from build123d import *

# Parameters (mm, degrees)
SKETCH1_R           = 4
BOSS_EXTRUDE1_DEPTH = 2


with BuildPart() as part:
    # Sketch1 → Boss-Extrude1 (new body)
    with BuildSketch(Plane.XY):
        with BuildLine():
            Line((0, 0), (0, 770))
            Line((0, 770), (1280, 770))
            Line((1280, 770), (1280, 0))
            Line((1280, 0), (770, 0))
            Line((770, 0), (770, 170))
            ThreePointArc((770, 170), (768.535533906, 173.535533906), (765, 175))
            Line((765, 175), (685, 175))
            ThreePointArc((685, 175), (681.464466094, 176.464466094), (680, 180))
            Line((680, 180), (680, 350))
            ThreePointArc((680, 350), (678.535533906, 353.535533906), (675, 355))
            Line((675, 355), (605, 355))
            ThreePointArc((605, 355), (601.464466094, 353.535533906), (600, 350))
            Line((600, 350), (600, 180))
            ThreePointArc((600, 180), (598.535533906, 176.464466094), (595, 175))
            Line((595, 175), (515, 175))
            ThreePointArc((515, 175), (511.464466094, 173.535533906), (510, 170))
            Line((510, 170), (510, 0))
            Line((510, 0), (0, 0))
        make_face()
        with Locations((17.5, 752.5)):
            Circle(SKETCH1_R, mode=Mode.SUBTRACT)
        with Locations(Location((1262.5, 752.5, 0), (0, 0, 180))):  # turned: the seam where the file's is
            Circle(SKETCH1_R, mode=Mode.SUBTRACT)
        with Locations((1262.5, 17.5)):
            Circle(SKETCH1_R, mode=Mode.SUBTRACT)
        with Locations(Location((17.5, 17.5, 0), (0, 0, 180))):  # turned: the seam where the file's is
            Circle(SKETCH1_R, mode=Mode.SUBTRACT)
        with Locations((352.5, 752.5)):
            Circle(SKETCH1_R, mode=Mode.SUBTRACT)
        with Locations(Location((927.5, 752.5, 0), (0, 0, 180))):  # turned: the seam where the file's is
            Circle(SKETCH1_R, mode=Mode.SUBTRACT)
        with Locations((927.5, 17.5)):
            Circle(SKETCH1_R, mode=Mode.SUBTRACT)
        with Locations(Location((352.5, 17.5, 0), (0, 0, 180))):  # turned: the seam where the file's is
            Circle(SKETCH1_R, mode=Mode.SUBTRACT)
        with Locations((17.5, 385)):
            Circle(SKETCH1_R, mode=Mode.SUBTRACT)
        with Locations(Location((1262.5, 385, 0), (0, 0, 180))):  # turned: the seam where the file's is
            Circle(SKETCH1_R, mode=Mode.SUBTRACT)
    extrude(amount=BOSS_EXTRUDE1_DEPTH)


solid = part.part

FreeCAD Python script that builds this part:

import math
import FreeCAD as App
import Part
import Sketcher

V = App.Vector
Q = App.Units.Quantity

doc = App.newDocument("Part")
body = doc.addObject("PartDesign::Body", "Body")

sketch1 = body.newObject("Sketcher::SketchObject", "Sketch")
sketch1.AttachmentSupport = (doc.getObject("XY_Plane"), [""])
sketch1.MapMode = "FlatFace"
sketch1.addGeometry([
    Part.LineSegment(V(0, 770, 0), V(0, 0, 0)),
    Part.LineSegment(V(0, 0, 0), V(510, 0, 0)),
    Part.LineSegment(V(510, 0, 0), V(510, 170, 0)),
    Part.ArcOfCircle(Part.Circle(V(515, 170, 0), V(0, 0, 1), 5), math.radians(90), math.radians(180)),
    Part.LineSegment(V(515, 175, 0), V(595, 175, 0)),
    Part.ArcOfCircle(Part.Circle(V(595, 180, 0), V(0, 0, 1), 5), math.radians(-90), math.radians(0)),
    Part.LineSegment(V(600, 180, 0), V(600, 350, 0)),
    Part.ArcOfCircle(Part.Circle(V(605, 350, 0), V(0, 0, 1), 5), math.radians(90), math.radians(180)),
    Part.LineSegment(V(605, 355, 0), V(675, 355, 0)),
    Part.ArcOfCircle(Part.Circle(V(675, 350, 0), V(0, 0, 1), 5), math.radians(0), math.radians(90)),
    Part.LineSegment(V(680, 350, 0), V(680, 180, 0)),
    Part.ArcOfCircle(Part.Circle(V(685, 180, 0), V(0, 0, 1), 5), math.radians(180), math.radians(270)),
    Part.LineSegment(V(685, 175, 0), V(765, 175, 0)),
    Part.ArcOfCircle(Part.Circle(V(765, 170, 0), V(0, 0, 1), 5), math.radians(0), math.radians(90)),
    Part.LineSegment(V(770, 170, 0), V(770, 0, 0)),
    Part.LineSegment(V(770, 0, 0), V(1280, 0, 0)),
    Part.LineSegment(V(1280, 0, 0), V(1280, 770, 0)),
    Part.LineSegment(V(1280, 770, 0), V(0, 770, 0)),
    Part.Circle(V(1262.5, 17.5, 0), V(0, 0, 1), 4),
    Part.Circle(V(927.5, 17.5, 0), V(0, 0, 1), 4),
    Part.Circle(V(352.5, 17.5, 0), V(0, 0, 1), 4),
    Part.Circle(V(17.5, 17.5, 0), V(0, 0, 1), 4),
    Part.Circle(V(1262.5, 385, 0), V(0, 0, 1), 4),
    Part.Circle(V(1262.5, 752.5, 0), V(0, 0, 1), 4),
    Part.Circle(V(927.5, 752.5, 0), V(0, 0, 1), 4),
    Part.Circle(V(17.5, 385, 0), V(0, 0, 1), 4),
    Part.Circle(V(352.5, 752.5, 0), V(0, 0, 1), 4),
    Part.Circle(V(17.5, 752.5, 0), V(0, 0, 1), 4),
], False)
sketch1.addConstraint([
    Sketcher.Constraint("Coincident", 0, 2, 1, 1),
    Sketcher.Constraint("Coincident", 1, 2, 2, 1),
    Sketcher.Constraint("Tangent", 2, 2, 3, 2),
    Sketcher.Constraint("Tangent", 3, 1, 4, 1),
    Sketcher.Constraint("Tangent", 4, 2, 5, 1),
    Sketcher.Constraint("Tangent", 5, 2, 6, 1),
    Sketcher.Constraint("Tangent", 6, 2, 7, 2),
    Sketcher.Constraint("Tangent", 7, 1, 8, 1),
    Sketcher.Constraint("Tangent", 8, 2, 9, 2),
    Sketcher.Constraint("Tangent", 9, 1, 10, 1),
    Sketcher.Constraint("Tangent", 10, 2, 11, 1),
    Sketcher.Constraint("Tangent", 11, 2, 12, 1),
    Sketcher.Constraint("Tangent", 12, 2, 13, 2),
    Sketcher.Constraint("Tangent", 13, 1, 14, 1),
    Sketcher.Constraint("Coincident", 14, 2, 15, 1),
    Sketcher.Constraint("Coincident", 15, 2, 16, 1),
    Sketcher.Constraint("Coincident", 16, 2, 17, 1),
    Sketcher.Constraint("Coincident", 17, 2, 0, 1),
    Sketcher.Constraint("Vertical", 0),
    Sketcher.Constraint("Horizontal", 1),
    Sketcher.Constraint("Vertical", 2),
    Sketcher.Constraint("Horizontal", 4),
    Sketcher.Constraint("Vertical", 6),
    Sketcher.Constraint("Horizontal", 8),
    Sketcher.Constraint("Vertical", 10),
    Sketcher.Constraint("Horizontal", 12),
    Sketcher.Constraint("Vertical", 14),
    Sketcher.Constraint("Horizontal", 15),
    Sketcher.Constraint("Vertical", 16),
    Sketcher.Constraint("Horizontal", 17),
    Sketcher.Constraint("Coincident", 0, 2, -1, 1),
    Sketcher.Constraint("Equal", 3, 5),
    Sketcher.Constraint("Equal", 5, 7),
    Sketcher.Constraint("Equal", 7, 9),
    Sketcher.Constraint("Equal", 9, 11),
    Sketcher.Constraint("Equal", 11, 13),
    Sketcher.Constraint("Equal", 18, 19),
    Sketcher.Constraint("Equal", 19, 20),
    Sketcher.Constraint("Equal", 20, 21),
    Sketcher.Constraint("Equal", 21, 22),
    Sketcher.Constraint("Equal", 22, 23),
    Sketcher.Constraint("Equal", 23, 24),
    Sketcher.Constraint("Equal", 24, 25),
    Sketcher.Constraint("Equal", 25, 26),
    Sketcher.Constraint("Equal", 26, 27),
    Sketcher.Constraint("PointOnObject", 14, 2, -1),
    Sketcher.Constraint("Horizontal", 5, 3, 11, 3),
    Sketcher.Constraint("Horizontal", 18, 3, 19, 3),
    Sketcher.Constraint("Horizontal", 19, 3, 20, 3),
    Sketcher.Constraint("Horizontal", 20, 3, 21, 3),
    Sketcher.Constraint("Horizontal", 23, 3, 24, 3),
    Sketcher.Constraint("Horizontal", 22, 3, 25, 3),
    Sketcher.Constraint("Horizontal", 24, 3, 26, 3),
    Sketcher.Constraint("Horizontal", 26, 3, 27, 3),
    Sketcher.Constraint("Vertical", 18, 3, 22, 3),
    Sketcher.Constraint("Vertical", 22, 3, 23, 3),
    Sketcher.Constraint("Vertical", 19, 3, 24, 3),
    Sketcher.Constraint("Vertical", 21, 3, 25, 3),
    Sketcher.Constraint("Vertical", 20, 3, 26, 3),
    Sketcher.Constraint("Vertical", 25, 3, 27, 3),
    Sketcher.Constraint("Equal", 4, 12),
    Sketcher.Constraint("Equal", 1, 15),
    Sketcher.Constraint("Equal", 2, 6),
    Sketcher.Constraint("Diameter", 18, Q("8 mm")),
    Sketcher.Constraint("Radius", 3, Q("5 mm")),
    Sketcher.Constraint("DistanceX", 1, 1, 1, 2, Q("510 mm")),
    Sketcher.Constraint("DistanceX", 4, 1, 4, 2, Q("80 mm")),
    Sketcher.Constraint("DistanceX", 8, 1, 8, 2, Q("70 mm")),
    Sketcher.Constraint("DistanceY", 0, 2, 0, 1, Q("770 mm")),
    Sketcher.Constraint("DistanceY", 2, 1, 2, 2, Q("170 mm")),
    Sketcher.Constraint("DistanceY", -1, 1, 22, 3, Q("385 mm")),
    Sketcher.Constraint("DistanceX", 19, 3, 18, 3, Q("335 mm")),
    Sketcher.Constraint("DistanceX", 21, 3, 20, 3, Q("335 mm")),
    Sketcher.Constraint("DistanceY", 18, 3, 23, 3, Q("735 mm")),
    Sketcher.Constraint("DistanceX", 26, 3, 24, 3, Q("575 mm")),
    Sketcher.Constraint("DistanceX", -1, 1, 18, 3, Q("1262.5 mm")),
    Sketcher.Constraint("DistanceY", -1, 1, 18, 3, Q("17.5 mm")),
])
pad1 = body.newObject("PartDesign::Pad", "Pad")
pad1.Profile = sketch1
pad1.Length = 2

doc.recompute()
